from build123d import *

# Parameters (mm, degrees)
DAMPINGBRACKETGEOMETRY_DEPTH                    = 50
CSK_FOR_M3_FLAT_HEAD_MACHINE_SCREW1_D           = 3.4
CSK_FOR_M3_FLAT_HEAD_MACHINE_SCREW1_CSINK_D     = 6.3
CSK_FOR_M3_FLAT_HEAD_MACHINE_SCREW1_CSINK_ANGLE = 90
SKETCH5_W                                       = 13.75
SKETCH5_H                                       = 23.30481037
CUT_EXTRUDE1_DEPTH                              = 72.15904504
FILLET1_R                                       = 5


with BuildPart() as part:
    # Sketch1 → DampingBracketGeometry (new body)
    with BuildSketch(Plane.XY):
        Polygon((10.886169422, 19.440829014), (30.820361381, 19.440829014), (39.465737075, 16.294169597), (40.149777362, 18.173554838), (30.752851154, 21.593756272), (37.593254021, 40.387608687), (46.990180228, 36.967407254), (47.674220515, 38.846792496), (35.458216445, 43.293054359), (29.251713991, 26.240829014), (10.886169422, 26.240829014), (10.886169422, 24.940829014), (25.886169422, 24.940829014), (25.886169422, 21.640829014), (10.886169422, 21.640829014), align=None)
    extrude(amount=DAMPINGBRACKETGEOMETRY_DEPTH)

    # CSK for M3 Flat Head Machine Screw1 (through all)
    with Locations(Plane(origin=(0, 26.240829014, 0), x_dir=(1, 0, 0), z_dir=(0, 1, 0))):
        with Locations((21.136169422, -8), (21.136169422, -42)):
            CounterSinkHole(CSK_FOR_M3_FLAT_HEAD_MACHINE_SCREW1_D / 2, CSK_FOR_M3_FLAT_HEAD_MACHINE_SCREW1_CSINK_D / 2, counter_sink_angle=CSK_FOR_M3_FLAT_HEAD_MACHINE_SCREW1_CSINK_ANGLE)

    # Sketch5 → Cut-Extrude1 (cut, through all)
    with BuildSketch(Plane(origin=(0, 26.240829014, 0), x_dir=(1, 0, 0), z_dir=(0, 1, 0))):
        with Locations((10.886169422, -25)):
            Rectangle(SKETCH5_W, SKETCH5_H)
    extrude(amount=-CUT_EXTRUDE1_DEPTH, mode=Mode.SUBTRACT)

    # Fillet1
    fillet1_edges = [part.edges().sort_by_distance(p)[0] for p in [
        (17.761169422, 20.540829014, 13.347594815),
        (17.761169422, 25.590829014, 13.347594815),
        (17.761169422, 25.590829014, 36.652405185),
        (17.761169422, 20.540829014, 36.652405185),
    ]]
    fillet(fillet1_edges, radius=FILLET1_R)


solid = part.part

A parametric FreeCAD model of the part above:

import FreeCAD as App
import Part
import Sketcher

V = App.Vector
Q = App.Units.Quantity


def edges_at(feature, points):
    """Names of the edges that pass closest to the given points."""
    edges = feature.Shape.Edges
    near = lambda p: min(range(len(edges)), key=lambda i: edges[i].distToShape(Part.Vertex(*p))[0])
    return sorted({f"Edge{near(p) + 1}" for p in points})


def add_polygon(sketch, points):
    """Adds a closed chain of lines whose ends are joined by coincident constraints."""
    first, n = sketch.GeometryCount, len(points)
    for a, b in zip(points, points[1:] + points[:1]):
        sketch.addGeometry(Part.LineSegment(App.Vector(*a, 0), App.Vector(*b, 0)), False)
    for i in range(n):
        sketch.addConstraint(Sketcher.Constraint("Coincident", first + i, 2, first + (i + 1) % n, 1))

doc = App.newDocument("Part")
body = doc.addObject("PartDesign::Body", "Body")

sketch1 = body.newObject("Sketcher::SketchObject", "Sketch")
sketch1.AttachmentSupport = (doc.getObject("XY_Plane"), [""])
sketch1.MapMode = "FlatFace"
add_polygon(sketch1, [(10.9, 19.4), (30.8, 19.4), (39.5, 16.3), (40.1, 18.2), (30.8, 21.6), (37.6, 40.4), (47, 37), (47.7, 38.8), (35.5, 43.3), (29.3, 26.2), (10.9, 26.2), (10.9, 24.9), (25.9, 24.9), (25.9, 21.6), (10.9, 21.6)])
sketch1.addConstraint(Sketcher.Constraint("Horizontal", 0))
sketch1.addConstraint(Sketcher.Constraint("Horizontal", 9))
sketch1.addConstraint(Sketcher.Constraint("Vertical", 10))
sketch1.addConstraint(Sketcher.Constraint("Horizontal", 11))
sketch1.addConstraint(Sketcher.Constraint("Vertical", 12))
sketch1.addConstraint(Sketcher.Constraint("Horizontal", 13))
sketch1.addConstraint(Sketcher.Constraint("Vertical", 14))
sketch1.addConstraint(Sketcher.Constraint("Perpendicular", 1, 2))
sketch1.addConstraint(Sketcher.Constraint("Perpendicular", 2, 3))
sketch1.addConstraint(Sketcher.Constraint("Perpendicular", 3, 4))
sketch1.addConstraint(Sketcher.Constraint("Perpendicular", 4, 5))
sketch1.addConstraint(Sketcher.Constraint("Perpendicular", 5, 6))
sketch1.addConstraint(Sketcher.Constraint("Perpendicular", 6, 7))
sketch1.addConstraint(Sketcher.Constraint("Perpendicular", 7, 8))
sketch1.addConstraint(Sketcher.Constraint("Vertical", 10, 2, 13, 2))
sketch1.addConstraint(Sketcher.Constraint("Equal", 3, 5))
sketch1.addConstraint(Sketcher.Constraint("Equal", 2, 6))
sketch1.addConstraint(Sketcher.Constraint("DistanceX", 11, 1, 11, 2, Q("15 mm")))
sketch1.addConstraint(Sketcher.Constraint("Angle", 1, Q("-20 deg")))
sketch1.addConstraint(Sketcher.Constraint("Distance", 2, Q("2 mm")))
sketch1.addConstraint(Sketcher.Constraint("Distance", 3, Q("10 mm")))
sketch1.addConstraint(Sketcher.Constraint("Distance", 4, Q("20 mm")))
sketch1.addConstraint(Sketcher.Constraint("Distance", 7, Q("13 mm")))
sketch1.addConstraint(Sketcher.Constraint("DistanceY", 10, 2, 10, 1, Q("1.3 mm")))
sketch1.addConstraint(Sketcher.Constraint("DistanceY", 12, 2, 12, 1, Q("3.3 mm")))
sketch1.addConstraint(Sketcher.Constraint("DistanceY", 14, 2, 14, 1, Q("2.2 mm")))
sketch1.addConstraint(Sketcher.Constraint("Distance", 8, Q("18.146599 mm")))
sketch1.addConstraint(Sketcher.Constraint("DistanceX", 0, 1, 0, 2, Q("19.934192 mm")))
sketch1.addConstraint(Sketcher.Constraint("DistanceX", -1, 1, 0, 2, Q("30.820361 mm")))
sketch1.addConstraint(Sketcher.Constraint("DistanceY", -1, 1, 0, 2, Q("19.440829 mm")))
pad1 = body.newObject("PartDesign::Pad", "Pad")
pad1.Profile = sketch1
pad1.Length = 50

sketch2 = body.newObject("Sketcher::SketchObject", "Sketch001")
sketch2.AttachmentSupport = (doc.getObject("XZ_Plane"), [""])
sketch2.MapMode = "FlatFace"
sketch2.AttachmentOffset = App.Placement(V(0, 0, -26.240829), App.Rotation())
sketch2.addGeometry(Part.Circle(V(21.1, 8, 0), V(0, 0, 1), 1.7), False)
sketch2.addGeometry(Part.Circle(V(21.1, 42, 0), V(0, 0, 1), 1.7), False)
sketch2.addConstraint(Sketcher.Constraint("Equal", 0, 1))
sketch2.addConstraint(Sketcher.Constraint("Vertical", 0, 3, 1, 3))
sketch2.addConstraint(Sketcher.Constraint("Diameter", 0, Q("3.4 mm")))
sketch2.addConstraint(Sketcher.Constraint("DistanceY", -1, 1, 0, 3, Q("8 mm")))
sketch2.addConstraint(Sketcher.Constraint("DistanceY", -1, 1, 1, 3, Q("42 mm")))
sketch2.addConstraint(Sketcher.Constraint("DistanceX", -1, 1, 0, 3, Q("21.136169 mm")))
doc.recompute()
hole = body.newObject("PartDesign::Hole", "Hole")
hole.Profile = sketch2
hole.ThreadType = "None"
hole.Diameter = 3.4
hole.DepthType = "ThroughAll"
hole.HoleCutType = "Countersink"
hole.HoleCutDiameter = 6.3
hole.HoleCutCountersinkAngle = 90
hole.Reversed = True

sketch3 = body.newObject("Sketcher::SketchObject", "Sketch002")
sketch3.AttachmentSupport = (doc.getObject("XZ_Plane"), [""])
sketch3.MapMode = "FlatFace"
sketch3.AttachmentOffset = App.Placement(V(0, 0, -26.240829), App.Rotation())
add_polygon(sketch3, [(4, 13), (4, 37), (18, 37), (18, 13)])
sketch3.addConstraint(Sketcher.Constraint("Vertical", 0))
sketch3.addConstraint(Sketcher.Constraint("Horizontal", 1))
sketch3.addConstraint(Sketcher.Constraint("Vertical", 2))
sketch3.addConstraint(Sketcher.Constraint("Horizontal", 3))
sketch3.addConstraint(Sketcher.Constraint("DistanceX", 1, 1, 1, 2, Q("13.75 mm")))
sketch3.addConstraint(Sketcher.Constraint("DistanceY", 0, 1, 0, 2, Q("23.30481 mm")))
sketch3.addConstraint(Sketcher.Constraint("DistanceX", -1, 1, 0, 2, Q("4.011169 mm")))
sketch3.addConstraint(Sketcher.Constraint("DistanceY", -1, 1, 0, 2, Q("36.652405 mm")))
pocket1 = body.newObject("PartDesign::Pocket", "Pocket")
pocket1.Profile = sketch3
pocket1.Type = "ThroughAll"
pocket1.Reversed = True
doc.recompute()

fillet = body.newObject("PartDesign::Fillet", "Fillet")
fillet.Base = (pocket1, edges_at(pocket1, [
    (17.761, 20.541, 13.348),
    (17.761, 25.591, 13.348),
    (17.761, 25.591, 36.652),
    (17.761, 20.541, 36.652),
]))
fillet.Radius = 5

doc.recompute()
